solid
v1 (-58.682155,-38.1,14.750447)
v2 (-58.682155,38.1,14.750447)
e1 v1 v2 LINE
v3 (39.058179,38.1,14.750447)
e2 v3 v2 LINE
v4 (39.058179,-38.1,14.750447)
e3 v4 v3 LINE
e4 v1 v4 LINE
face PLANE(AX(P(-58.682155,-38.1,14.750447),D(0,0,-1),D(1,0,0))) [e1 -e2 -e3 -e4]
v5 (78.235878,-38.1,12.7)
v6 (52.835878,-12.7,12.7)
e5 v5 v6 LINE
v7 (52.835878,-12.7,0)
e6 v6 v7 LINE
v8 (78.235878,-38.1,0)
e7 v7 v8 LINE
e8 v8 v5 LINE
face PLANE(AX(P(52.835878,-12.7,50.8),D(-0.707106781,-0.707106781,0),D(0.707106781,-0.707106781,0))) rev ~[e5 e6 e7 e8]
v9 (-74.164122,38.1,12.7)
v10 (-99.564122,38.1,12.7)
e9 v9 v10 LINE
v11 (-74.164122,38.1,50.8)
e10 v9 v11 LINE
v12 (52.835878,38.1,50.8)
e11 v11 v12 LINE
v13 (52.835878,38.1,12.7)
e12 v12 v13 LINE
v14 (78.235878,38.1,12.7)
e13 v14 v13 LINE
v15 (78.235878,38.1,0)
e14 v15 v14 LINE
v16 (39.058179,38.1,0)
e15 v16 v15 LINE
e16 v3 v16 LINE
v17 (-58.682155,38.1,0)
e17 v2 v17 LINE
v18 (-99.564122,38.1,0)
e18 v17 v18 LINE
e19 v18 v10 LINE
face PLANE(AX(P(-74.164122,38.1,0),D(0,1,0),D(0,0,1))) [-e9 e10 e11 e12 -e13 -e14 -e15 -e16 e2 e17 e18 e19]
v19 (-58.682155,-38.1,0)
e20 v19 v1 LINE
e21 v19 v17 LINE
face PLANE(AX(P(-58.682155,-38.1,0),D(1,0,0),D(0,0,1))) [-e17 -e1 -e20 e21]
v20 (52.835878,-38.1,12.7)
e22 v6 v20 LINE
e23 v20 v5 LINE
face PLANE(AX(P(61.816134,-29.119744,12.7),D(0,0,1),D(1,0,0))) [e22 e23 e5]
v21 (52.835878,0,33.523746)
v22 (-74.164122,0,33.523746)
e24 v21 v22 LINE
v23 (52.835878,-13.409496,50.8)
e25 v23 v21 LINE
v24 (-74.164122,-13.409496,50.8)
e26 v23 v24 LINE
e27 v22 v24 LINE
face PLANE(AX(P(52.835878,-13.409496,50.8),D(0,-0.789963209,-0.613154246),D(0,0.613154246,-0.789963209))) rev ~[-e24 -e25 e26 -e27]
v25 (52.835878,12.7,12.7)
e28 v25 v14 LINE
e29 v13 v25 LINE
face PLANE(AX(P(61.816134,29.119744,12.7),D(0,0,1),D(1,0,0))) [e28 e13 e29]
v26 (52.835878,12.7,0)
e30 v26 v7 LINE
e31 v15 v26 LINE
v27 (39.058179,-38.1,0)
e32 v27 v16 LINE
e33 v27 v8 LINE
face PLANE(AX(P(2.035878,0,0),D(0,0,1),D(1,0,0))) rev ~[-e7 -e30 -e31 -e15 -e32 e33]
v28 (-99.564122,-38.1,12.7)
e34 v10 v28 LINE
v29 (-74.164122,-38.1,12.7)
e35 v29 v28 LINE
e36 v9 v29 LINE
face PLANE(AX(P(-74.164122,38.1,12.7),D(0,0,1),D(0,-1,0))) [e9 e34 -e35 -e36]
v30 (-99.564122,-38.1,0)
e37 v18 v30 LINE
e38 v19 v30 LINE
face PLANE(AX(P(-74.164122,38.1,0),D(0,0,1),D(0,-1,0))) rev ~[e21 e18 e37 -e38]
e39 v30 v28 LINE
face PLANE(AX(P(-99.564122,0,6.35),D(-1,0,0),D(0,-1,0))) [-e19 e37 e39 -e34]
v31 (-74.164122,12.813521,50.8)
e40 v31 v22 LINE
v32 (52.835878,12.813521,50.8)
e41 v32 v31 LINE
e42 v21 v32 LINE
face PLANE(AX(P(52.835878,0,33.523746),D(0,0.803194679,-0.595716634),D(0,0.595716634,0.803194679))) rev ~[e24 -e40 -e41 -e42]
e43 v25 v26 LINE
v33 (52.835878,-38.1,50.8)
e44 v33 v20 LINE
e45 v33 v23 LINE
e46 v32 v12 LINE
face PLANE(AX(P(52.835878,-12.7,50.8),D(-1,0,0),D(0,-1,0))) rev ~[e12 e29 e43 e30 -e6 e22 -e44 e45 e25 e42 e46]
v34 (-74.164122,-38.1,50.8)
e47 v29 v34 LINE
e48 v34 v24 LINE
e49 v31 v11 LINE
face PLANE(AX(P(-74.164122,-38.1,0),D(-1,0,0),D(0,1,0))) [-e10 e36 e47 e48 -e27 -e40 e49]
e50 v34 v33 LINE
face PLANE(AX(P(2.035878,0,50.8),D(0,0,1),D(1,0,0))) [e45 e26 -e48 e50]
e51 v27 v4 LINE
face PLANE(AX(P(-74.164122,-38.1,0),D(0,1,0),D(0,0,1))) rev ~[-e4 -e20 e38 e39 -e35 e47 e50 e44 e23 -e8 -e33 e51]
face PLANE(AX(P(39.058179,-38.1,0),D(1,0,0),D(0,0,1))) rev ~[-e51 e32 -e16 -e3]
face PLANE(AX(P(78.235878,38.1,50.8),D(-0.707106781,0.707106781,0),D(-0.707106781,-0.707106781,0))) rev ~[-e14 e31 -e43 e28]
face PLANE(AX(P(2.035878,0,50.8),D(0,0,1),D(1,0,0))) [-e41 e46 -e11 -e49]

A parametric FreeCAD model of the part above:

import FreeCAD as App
import Part
import Sketcher
Q = App.Units.Quantity

doc = App.newDocument("Part")
body = doc.addObject("PartDesign::Body", "Body")

# Sketch on XY plane
sketch1 = body.newObject("Sketcher::SketchObject", "Sketch")
sketch1.AttachmentSupport = (doc.getObject("XY_Plane"), [""])
sketch1.MapMode = "FlatFace"
sketch1.addGeometry([
    Part.LineSegment(App.Vector(-74, 38, 0), App.Vector(-74, -38, 0)),
    Part.LineSegment(App.Vector(-74, -38, 0), App.Vector(78, -38, 0)),
    Part.LineSegment(App.Vector(78, -38, 0), App.Vector(78, 38, 0)),
    Part.LineSegment(App.Vector(78, 38, 0), App.Vector(-74, 38, 0)),
], False)
sketch1.addConstraint([
    Sketcher.Constraint("Coincident", 0, 2, 1, 1),
    Sketcher.Constraint("Coincident", 1, 2, 2, 1),
    Sketcher.Constraint("Coincident", 2, 2, 3, 1),
    Sketcher.Constraint("Coincident", 3, 2, 0, 1),
    Sketcher.Constraint("Vertical", 0),
    Sketcher.Constraint("Horizontal", 1),
    Sketcher.Constraint("Vertical", 2),
    Sketcher.Constraint("Horizontal", 3),
    Sketcher.Constraint("DistanceX", 1, 1, 1, 2, Q("6 in")),
    Sketcher.Constraint("DistanceY", 0, 2, 0, 1, Q("3 in")),
    Sketcher.Constraint("DistanceY", 0, 2, -1, 1, Q("1.5 in")),
    Sketcher.Constraint("DistanceX", -1, 1, 1, 2, Q("78.235878 mm")),
])
pad1 = body.newObject("PartDesign::Pad", "Pad")
pad1.Profile = sketch1
pad1.Length = Q("2 in")

# Sketch on XY plane
sketch2 = body.newObject("Sketcher::SketchObject", "Sketch001")
sketch2.AttachmentSupport = (doc.getObject("XY_Plane"), [""])
sketch2.MapMode = "FlatFace"
sketch2.AttachmentOffset = App.Placement(App.Vector(0, 0, 2 * 25.4), App.Rotation())
sketch2.addGeometry([
    Part.LineSegment(App.Vector(78, -38, 0), App.Vector(78, 38, 0)),
    Part.LineSegment(App.Vector(78, 38, 0), App.Vector(53, 13, 0)),
    Part.LineSegment(App.Vector(53, 13, 0), App.Vector(53, -13, 0)),
    Part.LineSegment(App.Vector(53, -13, 0), App.Vector(78, -38, 0)),
], False)
sketch2.addConstraint([
    Sketcher.Constraint("Coincident", 0, 2, 1, 1),
    Sketcher.Constraint("Coincident", 1, 2, 2, 1),
    Sketcher.Constraint("Coincident", 2, 2, 3, 1),
    Sketcher.Constraint("Coincident", 3, 2, 0, 1),
    Sketcher.Constraint("Vertical", 0),
    Sketcher.Constraint("Vertical", 2),
    Sketcher.Constraint("Perpendicular", 1, 3),
    Sketcher.Constraint("Equal", 1, 3),
    Sketcher.Constraint("DistanceY", 0, 1, 0, 2, Q("3 in")),
    Sketcher.Constraint("DistanceY", 2, 2, 2, 1, Q("1 in")),
    Sketcher.Constraint("DistanceY", -1, 1, 0, 2, Q("1.5 in")),
    Sketcher.Constraint("DistanceX", -1, 1, 0, 2, Q("78.235878 mm")),
])
pocket1 = body.newObject("PartDesign::Pocket", "Pocket")
pocket1.Profile = sketch2
pocket1.Type = "ThroughAll"

# Sketch on XY plane
sketch3 = body.newObject("Sketcher::SketchObject", "Sketch002")
sketch3.AttachmentSupport = (doc.getObject("XY_Plane"), [""])
sketch3.MapMode = "FlatFace"
sketch3.AttachmentOffset = App.Placement(App.Vector(0, 0, 2 * 25.4), App.Rotation())
sketch3.addGeometry([
    Part.LineSegment(App.Vector(53, 13, 0), App.Vector(78, 38, 0)),
    Part.LineSegment(App.Vector(78, 38, 0), App.Vector(53, 38, 0)),
    Part.LineSegment(App.Vector(53, 38, 0), App.Vector(53, 13, 0)),
], False)
sketch3.addConstraint([
    Sketcher.Constraint("Coincident", 0, 2, 1, 1),
    Sketcher.Constraint("Coincident", 1, 2, 2, 1),
    Sketcher.Constraint("Coincident", 2, 2, 0, 1),
    Sketcher.Constraint("Horizontal", 1),
    Sketcher.Constraint("Vertical", 2),
    Sketcher.Constraint("Equal", 1, 2),
    Sketcher.Constraint("DistanceX", 1, 2, 1, 1, Q("1 in")),
    Sketcher.Constraint("DistanceY", -1, 1, 0, 2, Q("1.5 in")),
    Sketcher.Constraint("DistanceX", -1, 1, 0, 2, Q("78.235878 mm")),
])
pocket2 = body.newObject("PartDesign::Pocket", "Pocket001")
pocket2.Profile = sketch3
pocket2.Length = Q("1.5 in")

# Sketch on XY plane
sketch4 = body.newObject("Sketcher::SketchObject", "Sketch003")
sketch4.AttachmentSupport = (doc.getObject("XY_Plane"), [""])
sketch4.MapMode = "FlatFace"
sketch4.AttachmentOffset = App.Placement(App.Vector(0, 0, 2 * 25.4), App.Rotation())
sketch4.addGeometry([
    Part.LineSegment(App.Vector(53, -38, 0), App.Vector(78, -38, 0)),
    Part.LineSegment(App.Vector(78, -38, 0), App.Vector(53, -13, 0)),
    Part.LineSegment(App.Vector(53, -13, 0), App.Vector(53, -38, 0)),
], False)
sketch4.addConstraint([
    Sketcher.Constraint("Coincident", 0, 2, 1, 1),
    Sketcher.Constraint("Coincident", 1, 2, 2, 1),
    Sketcher.Constraint("Coincident", 2, 2, 0, 1),
    Sketcher.Constraint("Horizontal", 0),
    Sketcher.Constraint("Vertical", 2),
    Sketcher.Constraint("Equal", 0, 2),
    Sketcher.Constraint("DistanceX", 0, 1, 0, 2, Q("1 in")),
    Sketcher.Constraint("DistanceY", 0, 2, -1, 1, Q("1.5 in")),
    Sketcher.Constraint("DistanceX", -1, 1, 0, 2, Q("78.235878 mm")),
])
pocket3 = body.newObject("PartDesign::Pocket", "Pocket002")
pocket3.Profile = sketch4
pocket3.Length = Q("1.5 in")

# Sketch on YZ plane
sketch5 = body.newObject("Sketcher::SketchObject", "Sketch004")
sketch5.AttachmentSupport = (doc.getObject("YZ_Plane"), [""])
sketch5.MapMode = "FlatFace"
sketch5.AttachmentOffset = App.Placement(App.Vector(0, 0, 52.835878), App.Rotation())
sketch5.addGeometry([
    Part.LineSegment(App.Vector(13, 51, 0), App.Vector(-13, 51, 0)),
    Part.LineSegment(App.Vector(-13, 51, 0), App.Vector(0, 34, 0)),
    Part.LineSegment(App.Vector(0, 34, 0), App.Vector(13, 51, 0)),
], False)
sketch5.addConstraint([
    Sketcher.Constraint("Coincident", 0, 2, 1, 1),
    Sketcher.Constraint("Coincident", 1, 2, 2, 1),
    Sketcher.Constraint("Coincident", 2, 2, 0, 1),
    Sketcher.Constraint("Horizontal", 0),
    Sketcher.Constraint("PointOnObject", 1, 2, -2),
    Sketcher.Constraint("DistanceY", -1, 1, 0, 2, Q("2 in")),
    Sketcher.Constraint("DistanceX", 0, 2, 0, 1, Q("26.223017 mm")),
    Sketcher.Constraint("DistanceX", -1, 1, 2, 2, Q("12.813521 mm")),
    Sketcher.Constraint("Distance", 1, Q("21.869694 mm")),
])
pocket4 = body.newObject("PartDesign::Pocket", "Pocket003")
pocket4.Profile = sketch5
pocket4.Type = "ThroughAll"

# Sketch on XZ plane
sketch6 = body.newObject("Sketcher::SketchObject", "Sketch005")
sketch6.AttachmentSupport = (doc.getObject("XZ_Plane"), [""])
sketch6.MapMode = "FlatFace"
sketch6.AttachmentOffset = App.Placement(App.Vector(0, 0, 1.5 * 25.4), App.Rotation())
sketch6.addGeometry([
    Part.LineSegment(App.Vector(-59, 15, 0), App.Vector(-59, 0, 0)),
    Part.LineSegment(App.Vector(-59, 0, 0), App.Vector(39, 0, 0)),
    Part.LineSegment(App.Vector(39, 0, 0), App.Vector(39, 15, 0)),
    Part.LineSegment(App.Vector(39, 15, 0), App.Vector(-59, 15, 0)),
], False)
sketch6.addConstraint([
    Sketcher.Constraint("Coincident", 0, 2, 1, 1),
    Sketcher.Constraint("Coincident", 1, 2, 2, 1),
    Sketcher.Constraint("Coincident", 2, 2, 3, 1),
    Sketcher.Constraint("Coincident", 3, 2, 0, 1),
    Sketcher.Constraint("Vertical", 0),
    Sketcher.Constraint("Horizontal", 1),
    Sketcher.Constraint("Vertical", 2),
    Sketcher.Constraint("Horizontal", 3),
    Sketcher.Constraint("PointOnObject", 0, 2, -1),
    Sketcher.Constraint("DistanceX", 1, 1, 1, 2, Q("97.740334 mm")),
    Sketcher.Constraint("DistanceY", 0, 2, 0, 1, Q("14.750447 mm")),
    Sketcher.Constraint("DistanceX", -1, 1, 1, 2, Q("39.058179 mm")),
])
pocket5 = body.newObject("PartDesign::Pocket", "Pocket004")
pocket5.Profile = sketch6
pocket5.Type = "ThroughAll"

# Sketch on YZ plane
sketch7 = body.newObject("Sketcher::SketchObject", "Sketch006")
sketch7.AttachmentSupport = (doc.getObject("YZ_Plane"), [""])
sketch7.MapMode = "FlatFace"
sketch7.AttachmentOffset = App.Placement(App.Vector(0, 0, -74.164122), App.Rotation())
sketch7.addGeometry([
    Part.LineSegment(App.Vector(38, 13, 0), App.Vector(38, 0, 0)),
    Part.LineSegment(App.Vector(38, 0, 0), App.Vector(-38, 0, 0)),
    Part.LineSegment(App.Vector(-38, 0, 0), App.Vector(-38, 13, 0)),
    Part.LineSegment(App.Vector(-38, 13, 0), App.Vector(38, 13, 0)),
], False)
sketch7.addConstraint([
    Sketcher.Constraint("Coincident", 0, 2, 1, 1),
    Sketcher.Constraint("Coincident", 1, 2, 2, 1),
    Sketcher.Constraint("Coincident", 2, 2, 3, 1),
    Sketcher.Constraint("Coincident", 3, 2, 0, 1),
    Sketcher.Constraint("Vertical", 0),
    Sketcher.Constraint("Horizontal", 1),
    Sketcher.Constraint("Vertical", 2),
    Sketcher.Constraint("Horizontal", 3),
    Sketcher.Constraint("Symmetric", 0, 2, 1, 2, -1, 1),
    Sketcher.Constraint("DistanceX", 1, 2, 1, 1, Q("3 in")),
    Sketcher.Constraint("DistanceY", 0, 2, 0, 1, Q("0.5 in")),
])
pad2 = body.newObject("PartDesign::Pad", "Pad001")
pad2.Profile = sketch7
pad2.Length = Q("1 in")
pad2.Reversed = True

doc.recompute()
